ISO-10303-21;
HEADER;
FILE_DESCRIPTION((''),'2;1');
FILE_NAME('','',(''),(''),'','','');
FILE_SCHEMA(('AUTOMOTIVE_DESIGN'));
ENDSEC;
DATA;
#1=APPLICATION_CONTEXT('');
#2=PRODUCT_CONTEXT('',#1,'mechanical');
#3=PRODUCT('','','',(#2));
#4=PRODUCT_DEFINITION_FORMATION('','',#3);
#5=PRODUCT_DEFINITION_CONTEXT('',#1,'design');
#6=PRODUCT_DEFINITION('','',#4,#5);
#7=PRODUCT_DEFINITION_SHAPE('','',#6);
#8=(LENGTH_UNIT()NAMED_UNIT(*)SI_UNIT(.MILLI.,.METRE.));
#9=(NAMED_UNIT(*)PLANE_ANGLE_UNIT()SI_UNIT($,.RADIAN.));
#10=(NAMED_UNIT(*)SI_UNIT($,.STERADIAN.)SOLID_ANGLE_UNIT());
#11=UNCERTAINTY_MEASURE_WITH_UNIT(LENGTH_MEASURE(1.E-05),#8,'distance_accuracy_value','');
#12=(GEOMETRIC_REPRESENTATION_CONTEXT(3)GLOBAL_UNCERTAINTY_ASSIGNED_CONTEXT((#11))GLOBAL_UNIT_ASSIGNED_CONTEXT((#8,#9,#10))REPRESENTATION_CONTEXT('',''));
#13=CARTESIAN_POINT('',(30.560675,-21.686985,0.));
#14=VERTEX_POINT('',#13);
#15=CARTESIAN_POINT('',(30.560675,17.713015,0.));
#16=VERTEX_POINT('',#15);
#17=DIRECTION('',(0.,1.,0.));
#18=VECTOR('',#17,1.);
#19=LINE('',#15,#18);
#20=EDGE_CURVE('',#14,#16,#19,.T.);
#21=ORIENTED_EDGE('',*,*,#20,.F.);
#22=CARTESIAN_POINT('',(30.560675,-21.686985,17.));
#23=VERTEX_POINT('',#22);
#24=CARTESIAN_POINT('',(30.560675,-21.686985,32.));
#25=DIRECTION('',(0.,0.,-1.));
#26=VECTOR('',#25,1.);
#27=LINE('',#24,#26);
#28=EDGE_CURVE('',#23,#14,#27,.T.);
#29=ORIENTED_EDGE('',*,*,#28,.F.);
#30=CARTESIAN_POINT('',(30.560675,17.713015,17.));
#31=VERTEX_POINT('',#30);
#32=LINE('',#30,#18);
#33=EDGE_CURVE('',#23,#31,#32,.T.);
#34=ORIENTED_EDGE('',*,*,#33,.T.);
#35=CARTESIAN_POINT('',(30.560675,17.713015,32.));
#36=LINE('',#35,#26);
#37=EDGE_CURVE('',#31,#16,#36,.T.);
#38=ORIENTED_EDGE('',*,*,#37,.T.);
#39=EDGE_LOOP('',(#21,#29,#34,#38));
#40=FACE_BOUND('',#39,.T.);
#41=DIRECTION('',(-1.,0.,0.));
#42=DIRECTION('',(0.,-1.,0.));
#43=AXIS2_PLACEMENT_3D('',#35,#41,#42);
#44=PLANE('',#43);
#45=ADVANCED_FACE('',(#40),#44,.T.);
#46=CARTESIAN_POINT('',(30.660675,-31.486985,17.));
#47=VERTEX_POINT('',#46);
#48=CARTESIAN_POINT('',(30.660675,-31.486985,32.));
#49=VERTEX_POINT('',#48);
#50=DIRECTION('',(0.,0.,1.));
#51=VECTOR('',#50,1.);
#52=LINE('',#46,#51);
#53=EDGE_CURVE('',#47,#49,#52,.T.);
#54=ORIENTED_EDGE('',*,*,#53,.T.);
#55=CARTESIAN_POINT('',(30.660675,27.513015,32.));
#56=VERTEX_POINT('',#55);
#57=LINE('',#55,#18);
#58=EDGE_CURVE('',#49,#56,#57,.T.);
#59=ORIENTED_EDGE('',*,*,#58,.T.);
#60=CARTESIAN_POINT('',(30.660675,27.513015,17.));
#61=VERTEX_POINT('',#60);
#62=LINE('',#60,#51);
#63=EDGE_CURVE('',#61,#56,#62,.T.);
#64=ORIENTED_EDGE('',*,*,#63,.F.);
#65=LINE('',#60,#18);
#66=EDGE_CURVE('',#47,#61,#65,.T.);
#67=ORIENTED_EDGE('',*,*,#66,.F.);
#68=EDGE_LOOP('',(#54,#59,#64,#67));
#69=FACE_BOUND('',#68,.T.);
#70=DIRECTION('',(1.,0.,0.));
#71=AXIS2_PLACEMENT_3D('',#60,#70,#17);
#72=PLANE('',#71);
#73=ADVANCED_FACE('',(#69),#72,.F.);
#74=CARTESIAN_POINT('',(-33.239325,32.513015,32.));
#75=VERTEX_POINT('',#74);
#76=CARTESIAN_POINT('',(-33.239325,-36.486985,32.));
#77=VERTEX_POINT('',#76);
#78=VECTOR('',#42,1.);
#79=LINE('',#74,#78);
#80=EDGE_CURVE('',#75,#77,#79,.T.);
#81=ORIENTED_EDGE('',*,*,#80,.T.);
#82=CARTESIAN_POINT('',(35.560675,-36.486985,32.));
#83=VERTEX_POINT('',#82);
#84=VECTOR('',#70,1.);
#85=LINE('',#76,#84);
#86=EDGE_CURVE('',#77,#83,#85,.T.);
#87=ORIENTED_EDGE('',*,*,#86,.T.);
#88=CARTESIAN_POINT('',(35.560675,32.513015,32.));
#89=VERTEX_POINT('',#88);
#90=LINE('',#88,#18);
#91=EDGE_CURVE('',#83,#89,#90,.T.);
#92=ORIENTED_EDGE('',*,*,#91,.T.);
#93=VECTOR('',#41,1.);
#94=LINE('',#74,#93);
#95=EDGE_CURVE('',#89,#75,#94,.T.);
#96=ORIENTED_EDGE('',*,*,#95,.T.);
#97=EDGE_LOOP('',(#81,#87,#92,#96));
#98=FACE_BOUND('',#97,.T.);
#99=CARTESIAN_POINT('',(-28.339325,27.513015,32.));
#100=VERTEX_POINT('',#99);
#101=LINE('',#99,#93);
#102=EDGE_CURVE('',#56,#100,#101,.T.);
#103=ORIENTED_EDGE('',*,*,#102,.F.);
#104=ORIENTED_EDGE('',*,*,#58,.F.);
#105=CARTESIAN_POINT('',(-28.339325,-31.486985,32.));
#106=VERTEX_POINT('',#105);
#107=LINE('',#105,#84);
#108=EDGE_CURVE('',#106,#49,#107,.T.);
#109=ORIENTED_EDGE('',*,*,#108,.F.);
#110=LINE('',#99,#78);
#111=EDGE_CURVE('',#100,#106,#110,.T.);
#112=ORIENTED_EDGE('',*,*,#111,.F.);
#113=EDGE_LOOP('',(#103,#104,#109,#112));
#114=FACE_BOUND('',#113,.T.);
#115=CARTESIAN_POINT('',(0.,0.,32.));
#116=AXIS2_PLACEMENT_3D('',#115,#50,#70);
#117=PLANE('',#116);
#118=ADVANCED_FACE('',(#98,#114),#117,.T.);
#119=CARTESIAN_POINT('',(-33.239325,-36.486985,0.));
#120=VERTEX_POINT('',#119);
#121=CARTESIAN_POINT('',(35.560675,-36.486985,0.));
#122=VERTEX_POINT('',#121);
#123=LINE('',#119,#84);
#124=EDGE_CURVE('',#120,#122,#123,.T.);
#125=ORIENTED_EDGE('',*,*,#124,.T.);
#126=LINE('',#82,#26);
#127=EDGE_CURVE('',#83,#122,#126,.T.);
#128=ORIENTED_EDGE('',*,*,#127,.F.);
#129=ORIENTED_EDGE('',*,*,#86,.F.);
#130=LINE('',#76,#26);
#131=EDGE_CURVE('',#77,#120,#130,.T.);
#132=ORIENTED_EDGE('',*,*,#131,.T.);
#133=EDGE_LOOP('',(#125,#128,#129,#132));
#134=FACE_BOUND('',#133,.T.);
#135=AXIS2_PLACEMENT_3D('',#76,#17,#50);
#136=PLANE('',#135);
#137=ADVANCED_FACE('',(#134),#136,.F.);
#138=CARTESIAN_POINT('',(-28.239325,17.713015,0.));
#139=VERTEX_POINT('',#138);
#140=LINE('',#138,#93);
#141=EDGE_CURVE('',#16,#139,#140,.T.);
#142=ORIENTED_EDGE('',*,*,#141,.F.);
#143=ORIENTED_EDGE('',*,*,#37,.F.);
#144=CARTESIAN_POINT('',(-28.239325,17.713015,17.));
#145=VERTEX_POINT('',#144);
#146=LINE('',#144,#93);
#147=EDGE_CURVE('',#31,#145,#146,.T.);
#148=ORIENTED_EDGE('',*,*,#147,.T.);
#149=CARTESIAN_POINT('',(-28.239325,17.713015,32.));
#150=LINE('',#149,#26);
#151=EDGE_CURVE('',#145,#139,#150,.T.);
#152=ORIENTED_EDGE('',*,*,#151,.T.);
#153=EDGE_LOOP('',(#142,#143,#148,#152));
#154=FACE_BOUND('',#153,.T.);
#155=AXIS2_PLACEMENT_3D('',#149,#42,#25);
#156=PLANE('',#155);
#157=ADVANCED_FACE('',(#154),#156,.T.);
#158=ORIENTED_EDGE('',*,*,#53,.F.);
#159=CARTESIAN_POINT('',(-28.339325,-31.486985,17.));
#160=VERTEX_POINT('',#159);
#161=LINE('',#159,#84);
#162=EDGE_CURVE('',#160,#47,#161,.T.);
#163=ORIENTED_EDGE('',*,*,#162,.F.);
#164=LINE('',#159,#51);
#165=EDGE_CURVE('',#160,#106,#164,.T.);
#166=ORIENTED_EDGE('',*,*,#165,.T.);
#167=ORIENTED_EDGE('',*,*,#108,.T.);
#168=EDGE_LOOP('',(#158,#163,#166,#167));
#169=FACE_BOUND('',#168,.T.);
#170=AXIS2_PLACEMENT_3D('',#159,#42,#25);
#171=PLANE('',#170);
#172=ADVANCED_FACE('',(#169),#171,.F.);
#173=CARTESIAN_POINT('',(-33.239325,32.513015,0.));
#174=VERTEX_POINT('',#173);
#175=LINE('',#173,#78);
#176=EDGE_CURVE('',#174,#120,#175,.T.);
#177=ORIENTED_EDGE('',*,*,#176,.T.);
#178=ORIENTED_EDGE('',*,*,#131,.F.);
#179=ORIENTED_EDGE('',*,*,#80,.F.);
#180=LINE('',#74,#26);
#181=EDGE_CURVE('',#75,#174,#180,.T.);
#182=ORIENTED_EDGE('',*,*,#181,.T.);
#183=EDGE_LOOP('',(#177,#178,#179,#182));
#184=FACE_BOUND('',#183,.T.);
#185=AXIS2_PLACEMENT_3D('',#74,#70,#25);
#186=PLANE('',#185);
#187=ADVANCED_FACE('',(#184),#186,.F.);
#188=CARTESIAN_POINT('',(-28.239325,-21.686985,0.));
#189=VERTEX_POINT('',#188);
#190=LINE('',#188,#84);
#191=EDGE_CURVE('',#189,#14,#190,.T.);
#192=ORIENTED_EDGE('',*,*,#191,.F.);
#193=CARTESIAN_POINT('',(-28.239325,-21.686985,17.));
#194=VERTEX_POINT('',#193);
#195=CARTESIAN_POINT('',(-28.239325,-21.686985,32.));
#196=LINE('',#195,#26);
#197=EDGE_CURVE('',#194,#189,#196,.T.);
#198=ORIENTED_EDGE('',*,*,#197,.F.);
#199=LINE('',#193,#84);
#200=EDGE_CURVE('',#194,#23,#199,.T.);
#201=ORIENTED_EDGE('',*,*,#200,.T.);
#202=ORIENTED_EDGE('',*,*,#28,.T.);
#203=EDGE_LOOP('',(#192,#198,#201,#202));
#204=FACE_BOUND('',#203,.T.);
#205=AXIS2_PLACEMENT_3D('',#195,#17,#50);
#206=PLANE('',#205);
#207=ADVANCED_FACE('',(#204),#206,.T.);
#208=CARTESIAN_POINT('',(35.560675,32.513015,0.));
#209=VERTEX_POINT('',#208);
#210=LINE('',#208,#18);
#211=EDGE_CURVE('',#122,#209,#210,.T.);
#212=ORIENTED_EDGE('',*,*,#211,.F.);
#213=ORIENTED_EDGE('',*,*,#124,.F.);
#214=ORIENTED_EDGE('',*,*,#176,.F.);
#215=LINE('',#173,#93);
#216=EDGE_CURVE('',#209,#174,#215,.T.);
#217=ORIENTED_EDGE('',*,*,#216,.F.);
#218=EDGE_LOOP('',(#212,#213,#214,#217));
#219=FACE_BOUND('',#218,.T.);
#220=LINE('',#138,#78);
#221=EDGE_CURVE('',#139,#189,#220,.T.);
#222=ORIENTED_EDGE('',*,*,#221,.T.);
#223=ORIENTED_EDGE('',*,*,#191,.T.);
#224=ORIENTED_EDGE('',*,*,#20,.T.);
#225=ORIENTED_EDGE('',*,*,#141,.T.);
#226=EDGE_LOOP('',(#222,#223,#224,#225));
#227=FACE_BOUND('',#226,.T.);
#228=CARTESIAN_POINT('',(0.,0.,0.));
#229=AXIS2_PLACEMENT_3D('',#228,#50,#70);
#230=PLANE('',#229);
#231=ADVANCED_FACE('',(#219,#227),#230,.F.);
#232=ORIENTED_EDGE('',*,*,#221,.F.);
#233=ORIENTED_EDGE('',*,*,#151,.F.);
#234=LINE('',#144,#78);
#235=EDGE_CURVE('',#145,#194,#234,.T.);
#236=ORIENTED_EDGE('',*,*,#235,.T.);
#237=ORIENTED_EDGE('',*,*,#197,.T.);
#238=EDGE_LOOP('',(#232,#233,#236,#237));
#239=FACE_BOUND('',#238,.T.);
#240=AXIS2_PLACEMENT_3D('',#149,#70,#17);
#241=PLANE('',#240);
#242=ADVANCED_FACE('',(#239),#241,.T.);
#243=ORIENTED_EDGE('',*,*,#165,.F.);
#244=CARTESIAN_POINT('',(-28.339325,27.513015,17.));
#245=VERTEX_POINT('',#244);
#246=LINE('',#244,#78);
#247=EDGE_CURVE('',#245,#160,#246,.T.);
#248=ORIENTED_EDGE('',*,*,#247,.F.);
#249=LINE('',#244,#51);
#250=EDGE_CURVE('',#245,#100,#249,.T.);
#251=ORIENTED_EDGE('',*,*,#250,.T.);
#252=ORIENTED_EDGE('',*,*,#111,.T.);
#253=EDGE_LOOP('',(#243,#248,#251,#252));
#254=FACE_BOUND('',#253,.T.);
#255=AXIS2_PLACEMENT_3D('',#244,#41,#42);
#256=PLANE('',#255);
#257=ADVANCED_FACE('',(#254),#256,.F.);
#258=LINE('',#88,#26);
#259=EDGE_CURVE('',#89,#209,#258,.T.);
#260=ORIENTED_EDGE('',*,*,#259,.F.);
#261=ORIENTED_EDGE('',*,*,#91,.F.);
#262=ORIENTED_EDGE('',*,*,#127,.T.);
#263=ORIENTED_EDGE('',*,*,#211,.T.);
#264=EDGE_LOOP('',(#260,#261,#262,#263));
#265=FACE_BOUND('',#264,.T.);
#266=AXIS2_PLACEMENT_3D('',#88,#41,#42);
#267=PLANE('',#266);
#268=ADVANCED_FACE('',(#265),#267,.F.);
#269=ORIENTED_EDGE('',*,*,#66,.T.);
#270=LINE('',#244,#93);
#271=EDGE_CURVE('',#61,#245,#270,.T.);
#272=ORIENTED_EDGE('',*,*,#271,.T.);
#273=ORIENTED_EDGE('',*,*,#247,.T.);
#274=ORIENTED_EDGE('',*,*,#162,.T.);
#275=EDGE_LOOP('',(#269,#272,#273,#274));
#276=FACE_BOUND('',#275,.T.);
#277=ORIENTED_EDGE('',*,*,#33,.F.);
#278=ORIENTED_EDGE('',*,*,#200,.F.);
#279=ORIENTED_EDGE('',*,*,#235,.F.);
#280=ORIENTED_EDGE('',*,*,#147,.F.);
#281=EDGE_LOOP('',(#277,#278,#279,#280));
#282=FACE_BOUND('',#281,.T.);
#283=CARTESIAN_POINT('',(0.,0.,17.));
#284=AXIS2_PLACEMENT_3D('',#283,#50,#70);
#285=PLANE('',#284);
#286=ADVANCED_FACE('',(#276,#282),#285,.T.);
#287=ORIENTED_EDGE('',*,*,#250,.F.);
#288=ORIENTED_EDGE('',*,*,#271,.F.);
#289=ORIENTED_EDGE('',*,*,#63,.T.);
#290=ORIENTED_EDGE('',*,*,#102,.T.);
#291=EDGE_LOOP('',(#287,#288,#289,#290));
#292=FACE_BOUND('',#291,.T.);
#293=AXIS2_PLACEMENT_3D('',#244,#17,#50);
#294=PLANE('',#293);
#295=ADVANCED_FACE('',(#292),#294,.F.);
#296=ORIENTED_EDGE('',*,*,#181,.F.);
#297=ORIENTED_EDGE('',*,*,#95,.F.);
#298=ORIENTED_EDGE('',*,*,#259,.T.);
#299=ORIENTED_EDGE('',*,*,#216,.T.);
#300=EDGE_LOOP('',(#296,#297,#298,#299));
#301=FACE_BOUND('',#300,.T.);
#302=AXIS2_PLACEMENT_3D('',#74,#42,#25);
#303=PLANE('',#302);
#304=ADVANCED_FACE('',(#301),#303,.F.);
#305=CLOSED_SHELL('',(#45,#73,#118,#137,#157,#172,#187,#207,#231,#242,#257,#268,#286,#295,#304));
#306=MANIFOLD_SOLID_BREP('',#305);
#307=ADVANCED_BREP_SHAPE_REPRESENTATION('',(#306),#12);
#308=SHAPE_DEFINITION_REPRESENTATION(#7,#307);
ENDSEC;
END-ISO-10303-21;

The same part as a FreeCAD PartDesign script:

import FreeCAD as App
import Part
import Sketcher

V = App.Vector

doc = App.newDocument("Part")
body = doc.addObject("PartDesign::Body", "Body")

sketch1 = doc.addObject("Sketcher::SketchObject", "Sketch")
body.addObject(sketch1)
sketch1.AttachmentSupport = (doc.XY_Plane, [""])
sketch1.MapMode = "FlatFace"
sketch1.addGeometry(Part.LineSegment(V(-33, 33, 0), V(-33, -36, 0)), False)
sketch1.addGeometry(Part.LineSegment(V(-33, -36, 0), V(36, -36, 0)), False)
sketch1.addGeometry(Part.LineSegment(V(36, -36, 0), V(36, 33, 0)), False)
sketch1.addGeometry(Part.LineSegment(V(36, 33, 0), V(-33, 33, 0)), False)
sketch1.addGeometry(Part.LineSegment(V(31, -22, 0), V(-28, -22, 0)), False)
sketch1.addGeometry(Part.LineSegment(V(-28, -22, 0), V(-28, 18, 0)), False)
sketch1.addGeometry(Part.LineSegment(V(-28, 18, 0), V(31, 18, 0)), False)
sketch1.addGeometry(Part.LineSegment(V(31, 18, 0), V(31, -22, 0)), False)
sketch1.addConstraint(Sketcher.Constraint("Coincident", 0, 2, 1, 1))
sketch1.addConstraint(Sketcher.Constraint("Coincident", 1, 2, 2, 1))
sketch1.addConstraint(Sketcher.Constraint("Coincident", 2, 2, 3, 1))
sketch1.addConstraint(Sketcher.Constraint("Coincident", 3, 2, 0, 1))
sketch1.addConstraint(Sketcher.Constraint("Coincident", 4, 2, 5, 1))
sketch1.addConstraint(Sketcher.Constraint("Coincident", 5, 2, 6, 1))
sketch1.addConstraint(Sketcher.Constraint("Coincident", 6, 2, 7, 1))
sketch1.addConstraint(Sketcher.Constraint("Coincident", 7, 2, 4, 1))
sketch1.addConstraint(Sketcher.Constraint("Vertical", 0))
sketch1.addConstraint(Sketcher.Constraint("Horizontal", 1))
sketch1.addConstraint(Sketcher.Constraint("Vertical", 2))
sketch1.addConstraint(Sketcher.Constraint("Horizontal", 3))
sketch1.addConstraint(Sketcher.Constraint("Horizontal", 4))
sketch1.addConstraint(Sketcher.Constraint("Vertical", 5))
sketch1.addConstraint(Sketcher.Constraint("Horizontal", 6))
sketch1.addConstraint(Sketcher.Constraint("Vertical", 7))
sketch1.addConstraint(Sketcher.Constraint("DistanceY", 0, 2, 0, 1, 69.0))
sketch1.addConstraint(Sketcher.Constraint("DistanceX", 1, 1, 1, 2, 68.8))
sketch1.addConstraint(Sketcher.Constraint("DistanceX", 4, 2, 4, 1, 58.8))
sketch1.addConstraint(Sketcher.Constraint("DistanceY", 5, 1, 5, 2, 39.4))
sketch1.addConstraint(Sketcher.Constraint("DistanceX", 0, 2, 4, 2, 5.0))
sketch1.addConstraint(Sketcher.Constraint("DistanceY", 0, 2, 4, 2, 14.8))
sketch1.addConstraint(Sketcher.Constraint("DistanceX", 0, 2, -1, 1, 33.239325))
sketch1.addConstraint(Sketcher.Constraint("DistanceY", 0, 2, -1, 1, 36.486985))
pad1 = doc.addObject("PartDesign::Pad", "Pad")
body.addObject(pad1)
pad1.Profile = sketch1
pad1.Length = 32

sketch2 = doc.addObject("Sketcher::SketchObject", "Sketch001")
body.addObject(sketch2)
sketch2.AttachmentSupport = (doc.XY_Plane, [""])
sketch2.MapMode = "FlatFace"
sketch2.AttachmentOffset = App.Placement(V(0, 0, 32), App.Rotation())
sketch2.addGeometry(Part.LineSegment(V(-28, 28, 0), V(-28, -31, 0)), False)
sketch2.addGeometry(Part.LineSegment(V(-28, -31, 0), V(31, -31, 0)), False)
sketch2.addGeometry(Part.LineSegment(V(31, -31, 0), V(31, 28, 0)), False)
sketch2.addGeometry(Part.LineSegment(V(31, 28, 0), V(-28, 28, 0)), False)
sketch2.addConstraint(Sketcher.Constraint("Coincident", 0, 2, 1, 1))
sketch2.addConstraint(Sketcher.Constraint("Coincident", 1, 2, 2, 1))
sketch2.addConstraint(Sketcher.Constraint("Coincident", 2, 2, 3, 1))
sketch2.addConstraint(Sketcher.Constraint("Coincident", 3, 2, 0, 1))
sketch2.addConstraint(Sketcher.Constraint("Vertical", 0))
sketch2.addConstraint(Sketcher.Constraint("Horizontal", 1))
sketch2.addConstraint(Sketcher.Constraint("Vertical", 2))
sketch2.addConstraint(Sketcher.Constraint("Horizontal", 3))
sketch2.addConstraint(Sketcher.Constraint("Equal", 3, 0))
sketch2.addConstraint(Sketcher.Constraint("DistanceX", 1, 1, 1, 2, 59.0))
sketch2.addConstraint(Sketcher.Constraint("DistanceX", 0, 2, -1, 1, 28.339325))
sketch2.addConstraint(Sketcher.Constraint("DistanceY", 0, 2, -1, 1, 31.486985))
pocket1 = doc.addObject("PartDesign::Pocket", "Pocket")
body.addObject(pocket1)
pocket1.Profile = sketch2
pocket1.Length = 15

doc.recompute()
